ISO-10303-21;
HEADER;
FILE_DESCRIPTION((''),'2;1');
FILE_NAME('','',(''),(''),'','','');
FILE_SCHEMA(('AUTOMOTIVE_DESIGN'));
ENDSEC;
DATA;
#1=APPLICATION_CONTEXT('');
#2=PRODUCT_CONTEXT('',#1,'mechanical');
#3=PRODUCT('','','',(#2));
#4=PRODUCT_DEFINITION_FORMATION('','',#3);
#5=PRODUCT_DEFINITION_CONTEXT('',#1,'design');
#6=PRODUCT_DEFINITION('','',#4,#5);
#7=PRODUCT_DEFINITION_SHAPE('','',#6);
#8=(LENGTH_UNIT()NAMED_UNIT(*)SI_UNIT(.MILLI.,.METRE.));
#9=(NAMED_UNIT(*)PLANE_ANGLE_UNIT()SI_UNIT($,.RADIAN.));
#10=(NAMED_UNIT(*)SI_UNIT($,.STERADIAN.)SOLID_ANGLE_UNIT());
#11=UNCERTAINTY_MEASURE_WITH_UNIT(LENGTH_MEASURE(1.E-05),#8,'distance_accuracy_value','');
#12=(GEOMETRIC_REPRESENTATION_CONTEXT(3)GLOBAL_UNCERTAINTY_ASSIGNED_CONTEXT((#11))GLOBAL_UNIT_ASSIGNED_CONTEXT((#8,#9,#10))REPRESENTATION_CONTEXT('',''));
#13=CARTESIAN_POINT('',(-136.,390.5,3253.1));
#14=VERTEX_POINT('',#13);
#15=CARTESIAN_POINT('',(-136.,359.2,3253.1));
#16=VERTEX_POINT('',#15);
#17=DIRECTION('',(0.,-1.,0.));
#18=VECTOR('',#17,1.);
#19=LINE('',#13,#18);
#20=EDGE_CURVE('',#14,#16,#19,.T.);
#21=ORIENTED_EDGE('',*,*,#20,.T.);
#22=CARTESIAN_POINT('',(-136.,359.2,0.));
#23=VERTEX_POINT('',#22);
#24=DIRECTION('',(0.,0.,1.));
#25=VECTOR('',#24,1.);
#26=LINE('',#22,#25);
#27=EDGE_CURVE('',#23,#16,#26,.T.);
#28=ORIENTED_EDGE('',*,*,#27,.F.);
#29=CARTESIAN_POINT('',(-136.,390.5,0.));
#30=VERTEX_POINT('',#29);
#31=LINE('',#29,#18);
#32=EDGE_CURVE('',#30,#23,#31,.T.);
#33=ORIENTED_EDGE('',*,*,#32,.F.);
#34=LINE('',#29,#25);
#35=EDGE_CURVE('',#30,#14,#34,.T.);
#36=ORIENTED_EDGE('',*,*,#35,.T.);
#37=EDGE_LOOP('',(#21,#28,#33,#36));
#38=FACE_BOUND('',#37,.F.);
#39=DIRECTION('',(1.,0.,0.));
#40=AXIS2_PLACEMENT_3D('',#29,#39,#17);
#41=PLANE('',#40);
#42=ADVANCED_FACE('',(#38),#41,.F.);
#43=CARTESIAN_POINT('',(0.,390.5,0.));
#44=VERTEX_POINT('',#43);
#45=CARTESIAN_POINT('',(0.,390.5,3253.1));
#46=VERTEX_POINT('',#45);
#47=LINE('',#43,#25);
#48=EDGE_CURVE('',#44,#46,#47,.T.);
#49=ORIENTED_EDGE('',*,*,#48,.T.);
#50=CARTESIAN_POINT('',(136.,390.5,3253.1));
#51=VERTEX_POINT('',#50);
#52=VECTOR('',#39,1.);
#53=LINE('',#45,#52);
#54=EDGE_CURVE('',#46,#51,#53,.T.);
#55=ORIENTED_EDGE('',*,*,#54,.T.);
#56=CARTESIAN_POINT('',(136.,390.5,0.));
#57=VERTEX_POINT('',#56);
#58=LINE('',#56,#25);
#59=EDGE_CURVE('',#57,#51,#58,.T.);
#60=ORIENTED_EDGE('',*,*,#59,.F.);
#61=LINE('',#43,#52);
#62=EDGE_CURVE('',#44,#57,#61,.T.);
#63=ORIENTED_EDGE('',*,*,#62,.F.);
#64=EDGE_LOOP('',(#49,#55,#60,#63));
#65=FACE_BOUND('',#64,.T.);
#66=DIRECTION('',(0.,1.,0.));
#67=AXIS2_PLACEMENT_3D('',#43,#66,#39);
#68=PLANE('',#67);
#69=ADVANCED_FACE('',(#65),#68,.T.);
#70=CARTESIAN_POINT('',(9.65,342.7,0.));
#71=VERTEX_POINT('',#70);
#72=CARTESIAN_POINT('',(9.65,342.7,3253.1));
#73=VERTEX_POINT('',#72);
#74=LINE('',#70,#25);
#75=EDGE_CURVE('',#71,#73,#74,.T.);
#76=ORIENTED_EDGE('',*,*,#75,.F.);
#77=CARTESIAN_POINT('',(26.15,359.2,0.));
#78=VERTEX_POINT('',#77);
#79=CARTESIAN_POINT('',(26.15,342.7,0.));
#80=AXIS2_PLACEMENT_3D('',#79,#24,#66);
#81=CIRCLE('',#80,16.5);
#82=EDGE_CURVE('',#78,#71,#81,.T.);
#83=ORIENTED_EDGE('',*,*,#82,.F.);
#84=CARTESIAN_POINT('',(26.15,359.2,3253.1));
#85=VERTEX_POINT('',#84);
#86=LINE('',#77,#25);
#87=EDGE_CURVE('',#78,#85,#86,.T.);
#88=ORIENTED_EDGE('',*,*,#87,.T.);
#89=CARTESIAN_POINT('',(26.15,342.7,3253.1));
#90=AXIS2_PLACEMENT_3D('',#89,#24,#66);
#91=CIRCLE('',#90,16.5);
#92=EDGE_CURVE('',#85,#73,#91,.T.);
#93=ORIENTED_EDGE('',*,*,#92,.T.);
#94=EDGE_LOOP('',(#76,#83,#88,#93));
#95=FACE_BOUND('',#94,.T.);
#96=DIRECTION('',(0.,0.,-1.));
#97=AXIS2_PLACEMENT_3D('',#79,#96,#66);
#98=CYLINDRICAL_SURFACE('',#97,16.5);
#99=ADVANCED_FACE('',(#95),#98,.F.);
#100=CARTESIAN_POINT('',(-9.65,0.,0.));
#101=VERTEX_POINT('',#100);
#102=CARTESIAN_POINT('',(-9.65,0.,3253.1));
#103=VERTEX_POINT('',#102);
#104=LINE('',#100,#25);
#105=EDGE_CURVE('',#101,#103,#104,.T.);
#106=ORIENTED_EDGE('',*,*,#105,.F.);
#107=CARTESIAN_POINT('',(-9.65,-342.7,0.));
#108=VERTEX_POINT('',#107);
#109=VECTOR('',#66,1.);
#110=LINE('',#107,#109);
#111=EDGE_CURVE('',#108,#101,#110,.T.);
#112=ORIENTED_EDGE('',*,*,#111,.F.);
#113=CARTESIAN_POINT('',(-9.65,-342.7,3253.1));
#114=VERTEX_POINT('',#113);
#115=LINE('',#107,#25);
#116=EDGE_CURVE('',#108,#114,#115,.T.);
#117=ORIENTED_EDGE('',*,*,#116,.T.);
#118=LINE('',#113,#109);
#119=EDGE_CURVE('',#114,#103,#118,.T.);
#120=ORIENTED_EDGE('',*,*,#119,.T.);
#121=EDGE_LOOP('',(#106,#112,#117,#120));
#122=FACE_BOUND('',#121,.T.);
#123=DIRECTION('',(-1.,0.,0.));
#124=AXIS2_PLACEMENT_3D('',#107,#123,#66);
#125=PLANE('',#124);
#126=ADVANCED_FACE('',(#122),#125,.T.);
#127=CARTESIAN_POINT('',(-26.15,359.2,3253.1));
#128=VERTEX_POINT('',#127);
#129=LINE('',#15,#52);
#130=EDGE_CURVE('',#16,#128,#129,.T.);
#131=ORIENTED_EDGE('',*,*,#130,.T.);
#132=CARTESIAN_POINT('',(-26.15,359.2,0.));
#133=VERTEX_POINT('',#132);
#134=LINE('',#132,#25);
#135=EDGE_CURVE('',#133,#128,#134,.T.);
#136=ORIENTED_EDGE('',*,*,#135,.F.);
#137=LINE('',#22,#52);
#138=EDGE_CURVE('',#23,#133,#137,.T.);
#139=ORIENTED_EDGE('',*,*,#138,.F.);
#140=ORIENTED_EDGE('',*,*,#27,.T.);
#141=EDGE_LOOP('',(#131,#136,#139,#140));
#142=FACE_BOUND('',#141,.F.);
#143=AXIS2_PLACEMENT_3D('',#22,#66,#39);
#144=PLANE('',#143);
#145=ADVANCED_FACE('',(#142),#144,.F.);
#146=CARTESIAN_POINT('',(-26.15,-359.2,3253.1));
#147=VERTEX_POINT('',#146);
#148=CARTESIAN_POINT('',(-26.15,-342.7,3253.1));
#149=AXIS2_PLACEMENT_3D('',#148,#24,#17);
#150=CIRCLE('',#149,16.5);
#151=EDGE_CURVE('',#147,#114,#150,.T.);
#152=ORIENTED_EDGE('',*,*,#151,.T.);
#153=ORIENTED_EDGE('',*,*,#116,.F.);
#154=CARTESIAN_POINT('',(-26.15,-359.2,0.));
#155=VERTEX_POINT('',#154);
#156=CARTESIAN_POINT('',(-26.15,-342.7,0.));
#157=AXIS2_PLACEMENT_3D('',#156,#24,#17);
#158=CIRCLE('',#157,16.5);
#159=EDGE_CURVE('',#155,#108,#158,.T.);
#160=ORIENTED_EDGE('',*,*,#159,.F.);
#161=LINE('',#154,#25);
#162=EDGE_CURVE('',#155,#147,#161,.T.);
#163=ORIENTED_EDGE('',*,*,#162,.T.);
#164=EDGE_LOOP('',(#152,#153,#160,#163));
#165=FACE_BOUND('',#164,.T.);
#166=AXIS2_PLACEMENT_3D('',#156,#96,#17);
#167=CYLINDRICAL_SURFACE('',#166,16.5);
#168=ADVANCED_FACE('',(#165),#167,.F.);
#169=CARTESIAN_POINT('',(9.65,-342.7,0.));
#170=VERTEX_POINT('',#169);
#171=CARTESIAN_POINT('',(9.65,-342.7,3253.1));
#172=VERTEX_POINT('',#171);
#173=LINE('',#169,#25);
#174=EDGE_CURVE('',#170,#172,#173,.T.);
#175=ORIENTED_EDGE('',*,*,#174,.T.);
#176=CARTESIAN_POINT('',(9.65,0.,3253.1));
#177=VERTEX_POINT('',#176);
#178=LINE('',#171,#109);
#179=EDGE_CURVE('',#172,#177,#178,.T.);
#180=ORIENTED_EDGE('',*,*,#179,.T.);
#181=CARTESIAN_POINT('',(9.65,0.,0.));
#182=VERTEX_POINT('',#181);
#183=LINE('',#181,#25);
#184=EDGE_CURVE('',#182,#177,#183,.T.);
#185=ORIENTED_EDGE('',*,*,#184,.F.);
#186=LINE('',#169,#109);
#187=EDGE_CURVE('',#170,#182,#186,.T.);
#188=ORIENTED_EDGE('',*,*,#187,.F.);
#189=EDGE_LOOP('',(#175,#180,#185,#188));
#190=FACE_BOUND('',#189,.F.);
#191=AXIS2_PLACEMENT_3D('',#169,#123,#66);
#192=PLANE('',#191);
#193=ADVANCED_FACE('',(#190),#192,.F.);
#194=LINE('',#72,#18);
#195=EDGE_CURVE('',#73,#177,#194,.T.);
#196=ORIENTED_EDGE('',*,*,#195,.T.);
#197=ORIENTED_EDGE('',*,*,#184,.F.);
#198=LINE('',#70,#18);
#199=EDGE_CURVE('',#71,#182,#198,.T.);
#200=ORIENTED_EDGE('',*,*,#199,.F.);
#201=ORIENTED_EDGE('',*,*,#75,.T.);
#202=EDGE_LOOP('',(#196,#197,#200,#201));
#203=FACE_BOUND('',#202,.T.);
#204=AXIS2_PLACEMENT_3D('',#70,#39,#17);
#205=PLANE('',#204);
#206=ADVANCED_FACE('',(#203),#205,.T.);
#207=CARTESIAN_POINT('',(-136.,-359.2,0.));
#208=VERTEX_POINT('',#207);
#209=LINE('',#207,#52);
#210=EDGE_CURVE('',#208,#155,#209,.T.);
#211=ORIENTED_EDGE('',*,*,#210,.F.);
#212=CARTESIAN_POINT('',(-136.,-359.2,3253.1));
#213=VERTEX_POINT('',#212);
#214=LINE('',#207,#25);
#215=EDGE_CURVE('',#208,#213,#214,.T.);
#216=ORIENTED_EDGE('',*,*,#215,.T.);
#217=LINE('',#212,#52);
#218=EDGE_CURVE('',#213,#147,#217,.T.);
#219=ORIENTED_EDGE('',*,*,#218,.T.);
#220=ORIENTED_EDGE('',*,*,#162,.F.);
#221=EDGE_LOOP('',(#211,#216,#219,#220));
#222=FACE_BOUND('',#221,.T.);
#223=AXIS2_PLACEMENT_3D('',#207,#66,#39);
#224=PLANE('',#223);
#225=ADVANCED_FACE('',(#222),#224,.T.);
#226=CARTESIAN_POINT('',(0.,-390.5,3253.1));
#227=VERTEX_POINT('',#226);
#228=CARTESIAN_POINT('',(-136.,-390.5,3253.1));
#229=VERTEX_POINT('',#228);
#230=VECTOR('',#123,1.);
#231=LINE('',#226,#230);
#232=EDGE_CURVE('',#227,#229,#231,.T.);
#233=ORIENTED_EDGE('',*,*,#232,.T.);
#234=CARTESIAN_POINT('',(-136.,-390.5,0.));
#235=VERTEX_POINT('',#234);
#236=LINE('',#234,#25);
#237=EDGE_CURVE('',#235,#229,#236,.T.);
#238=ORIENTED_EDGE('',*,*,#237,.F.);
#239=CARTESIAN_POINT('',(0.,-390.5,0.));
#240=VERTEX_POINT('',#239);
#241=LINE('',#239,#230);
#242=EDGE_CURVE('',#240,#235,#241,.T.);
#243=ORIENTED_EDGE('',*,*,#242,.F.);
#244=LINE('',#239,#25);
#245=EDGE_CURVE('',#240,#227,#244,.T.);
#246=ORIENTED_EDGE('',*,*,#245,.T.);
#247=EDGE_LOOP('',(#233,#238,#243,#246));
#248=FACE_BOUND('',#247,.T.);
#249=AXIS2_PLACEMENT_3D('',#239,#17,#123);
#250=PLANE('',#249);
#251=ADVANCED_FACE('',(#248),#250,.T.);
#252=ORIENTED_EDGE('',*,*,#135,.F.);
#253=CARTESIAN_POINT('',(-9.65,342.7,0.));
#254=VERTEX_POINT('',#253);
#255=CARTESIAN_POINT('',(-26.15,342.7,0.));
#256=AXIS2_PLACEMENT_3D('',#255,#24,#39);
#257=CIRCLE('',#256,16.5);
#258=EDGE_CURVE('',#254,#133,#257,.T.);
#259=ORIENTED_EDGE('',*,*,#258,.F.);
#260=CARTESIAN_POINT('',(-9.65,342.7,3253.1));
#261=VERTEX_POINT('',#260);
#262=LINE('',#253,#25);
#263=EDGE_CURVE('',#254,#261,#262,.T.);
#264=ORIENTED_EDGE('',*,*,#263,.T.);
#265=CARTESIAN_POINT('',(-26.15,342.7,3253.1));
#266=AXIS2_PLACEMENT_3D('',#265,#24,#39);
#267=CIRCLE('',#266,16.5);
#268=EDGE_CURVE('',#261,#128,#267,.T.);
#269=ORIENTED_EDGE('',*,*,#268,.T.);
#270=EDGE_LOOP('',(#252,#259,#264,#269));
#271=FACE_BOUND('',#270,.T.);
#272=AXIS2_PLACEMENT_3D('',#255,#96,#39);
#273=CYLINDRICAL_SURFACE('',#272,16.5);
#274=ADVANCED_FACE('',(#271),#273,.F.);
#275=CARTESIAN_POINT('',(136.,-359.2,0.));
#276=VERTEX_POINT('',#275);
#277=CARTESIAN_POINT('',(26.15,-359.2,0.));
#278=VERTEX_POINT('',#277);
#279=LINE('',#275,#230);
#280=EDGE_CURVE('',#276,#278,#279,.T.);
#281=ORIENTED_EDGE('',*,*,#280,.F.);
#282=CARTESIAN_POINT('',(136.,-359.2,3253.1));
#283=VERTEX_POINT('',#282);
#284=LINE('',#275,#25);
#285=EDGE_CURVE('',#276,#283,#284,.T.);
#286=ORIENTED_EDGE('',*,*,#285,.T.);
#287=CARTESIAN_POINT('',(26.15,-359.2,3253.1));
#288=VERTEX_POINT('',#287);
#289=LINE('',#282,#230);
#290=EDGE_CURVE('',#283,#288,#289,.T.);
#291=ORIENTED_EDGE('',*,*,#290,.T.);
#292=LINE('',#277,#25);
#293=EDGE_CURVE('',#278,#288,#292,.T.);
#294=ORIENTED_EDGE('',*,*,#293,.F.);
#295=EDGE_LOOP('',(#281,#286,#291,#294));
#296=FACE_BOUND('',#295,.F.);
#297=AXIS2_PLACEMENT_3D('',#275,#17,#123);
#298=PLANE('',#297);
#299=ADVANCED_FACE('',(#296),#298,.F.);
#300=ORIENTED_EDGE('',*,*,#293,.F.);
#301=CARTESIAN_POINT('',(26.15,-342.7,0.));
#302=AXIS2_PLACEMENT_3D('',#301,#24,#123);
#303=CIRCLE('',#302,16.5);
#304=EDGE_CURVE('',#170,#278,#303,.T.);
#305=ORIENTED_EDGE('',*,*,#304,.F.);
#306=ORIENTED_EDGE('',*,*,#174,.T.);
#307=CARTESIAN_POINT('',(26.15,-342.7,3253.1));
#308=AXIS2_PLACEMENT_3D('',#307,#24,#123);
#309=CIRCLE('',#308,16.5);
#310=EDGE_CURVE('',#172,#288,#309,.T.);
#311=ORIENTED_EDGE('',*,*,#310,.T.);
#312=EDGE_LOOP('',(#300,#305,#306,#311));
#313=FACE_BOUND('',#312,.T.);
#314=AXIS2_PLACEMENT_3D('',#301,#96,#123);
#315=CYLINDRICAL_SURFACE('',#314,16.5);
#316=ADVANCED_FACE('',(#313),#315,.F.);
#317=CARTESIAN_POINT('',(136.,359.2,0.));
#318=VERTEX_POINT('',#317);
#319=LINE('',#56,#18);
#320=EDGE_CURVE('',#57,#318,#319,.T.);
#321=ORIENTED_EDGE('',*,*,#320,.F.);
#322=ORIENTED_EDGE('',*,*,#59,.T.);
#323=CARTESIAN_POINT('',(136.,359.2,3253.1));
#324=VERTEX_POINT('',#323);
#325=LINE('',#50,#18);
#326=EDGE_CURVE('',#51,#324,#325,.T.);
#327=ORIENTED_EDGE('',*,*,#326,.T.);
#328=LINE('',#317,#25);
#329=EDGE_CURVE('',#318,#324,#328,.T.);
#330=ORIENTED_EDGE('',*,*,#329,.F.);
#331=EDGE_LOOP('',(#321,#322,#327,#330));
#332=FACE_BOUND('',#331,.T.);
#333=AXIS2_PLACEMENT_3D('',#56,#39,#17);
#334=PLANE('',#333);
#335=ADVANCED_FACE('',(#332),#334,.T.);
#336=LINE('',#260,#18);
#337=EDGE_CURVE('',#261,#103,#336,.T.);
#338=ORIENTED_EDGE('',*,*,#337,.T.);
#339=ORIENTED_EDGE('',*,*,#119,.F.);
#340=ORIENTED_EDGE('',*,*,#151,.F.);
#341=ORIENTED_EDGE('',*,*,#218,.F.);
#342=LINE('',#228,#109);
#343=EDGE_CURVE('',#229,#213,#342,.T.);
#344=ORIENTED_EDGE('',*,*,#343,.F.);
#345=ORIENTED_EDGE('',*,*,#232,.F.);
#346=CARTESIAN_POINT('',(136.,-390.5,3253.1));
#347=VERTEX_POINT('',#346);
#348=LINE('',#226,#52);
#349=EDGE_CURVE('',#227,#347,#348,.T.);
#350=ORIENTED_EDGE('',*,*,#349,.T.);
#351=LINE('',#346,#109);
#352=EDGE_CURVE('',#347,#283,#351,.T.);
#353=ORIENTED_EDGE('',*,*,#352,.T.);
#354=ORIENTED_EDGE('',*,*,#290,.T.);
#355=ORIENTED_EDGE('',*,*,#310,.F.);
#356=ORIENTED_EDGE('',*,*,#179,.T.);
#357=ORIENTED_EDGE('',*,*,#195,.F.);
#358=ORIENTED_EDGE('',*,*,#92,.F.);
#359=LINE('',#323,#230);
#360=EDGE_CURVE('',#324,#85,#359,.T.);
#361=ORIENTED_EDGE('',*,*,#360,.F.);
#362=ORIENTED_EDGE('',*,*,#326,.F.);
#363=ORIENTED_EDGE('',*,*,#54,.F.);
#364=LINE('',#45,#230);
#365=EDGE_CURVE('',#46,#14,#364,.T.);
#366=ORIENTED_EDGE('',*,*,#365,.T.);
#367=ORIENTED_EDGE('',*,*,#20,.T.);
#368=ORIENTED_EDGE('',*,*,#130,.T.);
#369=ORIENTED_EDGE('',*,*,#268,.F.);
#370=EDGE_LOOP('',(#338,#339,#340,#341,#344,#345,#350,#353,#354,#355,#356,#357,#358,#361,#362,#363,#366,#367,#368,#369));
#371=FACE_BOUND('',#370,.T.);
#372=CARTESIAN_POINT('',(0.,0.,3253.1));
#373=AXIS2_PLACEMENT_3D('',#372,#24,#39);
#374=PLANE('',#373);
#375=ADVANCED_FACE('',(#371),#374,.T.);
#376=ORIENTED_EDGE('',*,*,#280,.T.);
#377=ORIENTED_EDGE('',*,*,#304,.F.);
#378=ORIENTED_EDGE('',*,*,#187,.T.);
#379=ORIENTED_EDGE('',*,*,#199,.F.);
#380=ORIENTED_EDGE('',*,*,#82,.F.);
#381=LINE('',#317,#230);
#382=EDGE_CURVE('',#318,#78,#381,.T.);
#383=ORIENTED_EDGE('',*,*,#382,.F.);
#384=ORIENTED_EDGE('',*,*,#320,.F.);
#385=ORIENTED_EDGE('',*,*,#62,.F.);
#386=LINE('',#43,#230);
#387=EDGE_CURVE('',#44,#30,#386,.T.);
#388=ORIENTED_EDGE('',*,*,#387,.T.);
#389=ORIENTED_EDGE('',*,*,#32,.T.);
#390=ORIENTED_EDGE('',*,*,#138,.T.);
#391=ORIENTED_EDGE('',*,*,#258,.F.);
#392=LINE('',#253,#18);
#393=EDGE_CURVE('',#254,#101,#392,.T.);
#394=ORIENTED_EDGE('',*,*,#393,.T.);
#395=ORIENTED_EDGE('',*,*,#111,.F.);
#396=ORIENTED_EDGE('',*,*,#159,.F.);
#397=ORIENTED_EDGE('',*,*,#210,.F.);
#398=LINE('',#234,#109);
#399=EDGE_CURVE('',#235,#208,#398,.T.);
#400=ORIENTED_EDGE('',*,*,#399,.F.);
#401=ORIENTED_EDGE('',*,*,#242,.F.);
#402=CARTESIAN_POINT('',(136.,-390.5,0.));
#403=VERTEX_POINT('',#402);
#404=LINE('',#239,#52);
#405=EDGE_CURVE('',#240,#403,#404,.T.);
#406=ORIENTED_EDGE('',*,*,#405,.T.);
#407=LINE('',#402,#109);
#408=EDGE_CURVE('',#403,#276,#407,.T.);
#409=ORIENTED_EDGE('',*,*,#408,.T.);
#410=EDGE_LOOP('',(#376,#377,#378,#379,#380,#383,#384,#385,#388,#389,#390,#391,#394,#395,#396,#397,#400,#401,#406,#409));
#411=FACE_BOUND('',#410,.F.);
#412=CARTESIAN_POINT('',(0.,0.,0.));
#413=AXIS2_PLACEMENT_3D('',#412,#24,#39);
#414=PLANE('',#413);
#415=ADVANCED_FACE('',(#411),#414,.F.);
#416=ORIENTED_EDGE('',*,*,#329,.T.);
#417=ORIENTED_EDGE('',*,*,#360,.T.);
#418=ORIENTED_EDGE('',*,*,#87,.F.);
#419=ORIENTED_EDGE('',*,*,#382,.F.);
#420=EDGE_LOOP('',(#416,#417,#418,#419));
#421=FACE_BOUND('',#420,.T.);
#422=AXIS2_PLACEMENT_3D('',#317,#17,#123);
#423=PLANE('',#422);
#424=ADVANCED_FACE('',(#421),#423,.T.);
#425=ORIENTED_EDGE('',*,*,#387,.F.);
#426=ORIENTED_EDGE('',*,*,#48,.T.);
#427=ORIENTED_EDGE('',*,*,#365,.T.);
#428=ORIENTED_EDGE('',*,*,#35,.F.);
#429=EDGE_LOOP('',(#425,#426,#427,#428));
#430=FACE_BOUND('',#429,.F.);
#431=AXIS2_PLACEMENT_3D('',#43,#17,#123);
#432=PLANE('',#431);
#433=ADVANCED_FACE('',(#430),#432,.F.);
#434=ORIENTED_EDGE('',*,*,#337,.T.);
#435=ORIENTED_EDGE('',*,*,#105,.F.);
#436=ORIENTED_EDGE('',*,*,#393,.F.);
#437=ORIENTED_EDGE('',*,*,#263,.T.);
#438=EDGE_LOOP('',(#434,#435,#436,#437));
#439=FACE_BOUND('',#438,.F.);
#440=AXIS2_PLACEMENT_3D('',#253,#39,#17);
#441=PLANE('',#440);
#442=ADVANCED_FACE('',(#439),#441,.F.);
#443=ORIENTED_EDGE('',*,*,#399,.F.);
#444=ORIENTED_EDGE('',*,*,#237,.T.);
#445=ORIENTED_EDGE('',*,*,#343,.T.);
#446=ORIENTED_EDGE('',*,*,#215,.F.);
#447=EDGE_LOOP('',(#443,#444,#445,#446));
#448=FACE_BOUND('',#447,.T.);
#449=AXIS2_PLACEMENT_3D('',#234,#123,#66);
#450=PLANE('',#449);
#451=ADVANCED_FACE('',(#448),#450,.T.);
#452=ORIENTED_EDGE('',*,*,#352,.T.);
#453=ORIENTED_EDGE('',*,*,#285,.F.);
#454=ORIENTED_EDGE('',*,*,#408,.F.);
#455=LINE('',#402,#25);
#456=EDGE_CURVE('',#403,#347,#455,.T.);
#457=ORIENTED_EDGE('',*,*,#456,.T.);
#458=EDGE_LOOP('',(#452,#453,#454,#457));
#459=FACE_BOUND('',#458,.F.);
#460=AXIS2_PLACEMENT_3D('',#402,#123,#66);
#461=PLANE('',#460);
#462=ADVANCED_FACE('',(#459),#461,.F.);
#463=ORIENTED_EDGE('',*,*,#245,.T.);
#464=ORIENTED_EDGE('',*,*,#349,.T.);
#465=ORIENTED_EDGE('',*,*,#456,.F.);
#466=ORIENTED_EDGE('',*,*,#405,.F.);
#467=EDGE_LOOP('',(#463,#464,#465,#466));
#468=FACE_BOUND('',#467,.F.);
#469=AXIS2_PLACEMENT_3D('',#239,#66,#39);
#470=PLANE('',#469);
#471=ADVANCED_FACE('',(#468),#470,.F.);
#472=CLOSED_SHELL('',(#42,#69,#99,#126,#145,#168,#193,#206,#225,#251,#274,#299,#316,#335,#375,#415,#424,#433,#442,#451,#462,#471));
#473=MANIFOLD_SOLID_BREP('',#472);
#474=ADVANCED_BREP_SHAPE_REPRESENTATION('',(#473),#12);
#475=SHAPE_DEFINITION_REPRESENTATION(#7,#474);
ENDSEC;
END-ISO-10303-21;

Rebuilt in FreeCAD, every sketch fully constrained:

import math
import FreeCAD as App
import Part
import Sketcher

V = App.Vector
Q = App.Units.Quantity

doc = App.newDocument("Part")
body = doc.addObject("PartDesign::Body", "Body")

# Sketch on XY plane
sketch1 = body.newObject("Sketcher::SketchObject", "Sketch")
sketch1.AttachmentSupport = (doc.getObject("XY_Plane"), [""])
sketch1.MapMode = "FlatFace"
sketch1.addGeometry(Part.LineSegment(V(-136, -359.2, 0), V(-136, -390.5, 0)), False)
sketch1.addGeometry(Part.LineSegment(V(-136, -390.5, 0), V(136, -390.5, 0)), False)
sketch1.addGeometry(Part.LineSegment(V(136, -390.5, 0), V(136, -359.2, 0)), False)
sketch1.addGeometry(Part.LineSegment(V(136, -359.2, 0), V(26.15, -359.2, 0)), False)
sketch1.addGeometry(Part.ArcOfCircle(Part.Circle(V(26.15, -342.7, 0), V(0, 0, 1), 16.5), math.radians(180), math.radians(270)), False)
sketch1.addGeometry(Part.LineSegment(V(9.65, -342.7, 0), V(9.65, 342.7, 0)), False)
sketch1.addGeometry(Part.ArcOfCircle(Part.Circle(V(26.15, 342.7, 0), V(0, 0, 1), 16.5), math.radians(90), math.radians(180)), False)
sketch1.addGeometry(Part.LineSegment(V(26.15, 359.2, 0), V(136, 359.2, 0)), False)
sketch1.addGeometry(Part.LineSegment(V(136, 359.2, 0), V(136, 390.5, 0)), False)
sketch1.addGeometry(Part.LineSegment(V(136, 390.5, 0), V(-136, 390.5, 0)), False)
sketch1.addGeometry(Part.LineSegment(V(-136, 390.5, 0), V(-136, 359.2, 0)), False)
sketch1.addGeometry(Part.LineSegment(V(-136, 359.2, 0), V(-26.15, 359.2, 0)), False)
sketch1.addGeometry(Part.ArcOfCircle(Part.Circle(V(-26.15, 342.7, 0), V(0, 0, 1), 16.5), math.radians(0), math.radians(90)), False)
sketch1.addGeometry(Part.LineSegment(V(-9.65, 342.7, 0), V(-9.65, -342.7, 0)), False)
sketch1.addGeometry(Part.ArcOfCircle(Part.Circle(V(-26.15, -342.7, 0), V(0, 0, 1), 16.5), math.radians(-90), math.radians(0)), False)
sketch1.addGeometry(Part.LineSegment(V(-26.15, -359.2, 0), V(-136, -359.2, 0)), False)
sketch1.addConstraint(Sketcher.Constraint("Coincident", 0, 2, 1, 1))
sketch1.addConstraint(Sketcher.Constraint("Coincident", 1, 2, 2, 1))
sketch1.addConstraint(Sketcher.Constraint("Coincident", 2, 2, 3, 1))
sketch1.addConstraint(Sketcher.Constraint("Tangent", 3, 2, 4, 2))
sketch1.addConstraint(Sketcher.Constraint("Tangent", 4, 1, 5, 1))
sketch1.addConstraint(Sketcher.Constraint("Tangent", 5, 2, 6, 2))
sketch1.addConstraint(Sketcher.Constraint("Tangent", 6, 1, 7, 1))
sketch1.addConstraint(Sketcher.Constraint("Coincident", 7, 2, 8, 1))
sketch1.addConstraint(Sketcher.Constraint("Coincident", 8, 2, 9, 1))
sketch1.addConstraint(Sketcher.Constraint("Coincident", 9, 2, 10, 1))
sketch1.addConstraint(Sketcher.Constraint("Coincident", 10, 2, 11, 1))
sketch1.addConstraint(Sketcher.Constraint("Tangent", 11, 2, 12, 2))
sketch1.addConstraint(Sketcher.Constraint("Tangent", 12, 1, 13, 1))
sketch1.addConstraint(Sketcher.Constraint("Tangent", 13, 2, 14, 2))
sketch1.addConstraint(Sketcher.Constraint("Tangent", 14, 1, 15, 1))
sketch1.addConstraint(Sketcher.Constraint("Coincident", 15, 2, 0, 1))
sketch1.addConstraint(Sketcher.Constraint("Vertical", 0))
sketch1.addConstraint(Sketcher.Constraint("Horizontal", 1))
sketch1.addConstraint(Sketcher.Constraint("Vertical", 2))
sketch1.addConstraint(Sketcher.Constraint("Horizontal", 3))
sketch1.addConstraint(Sketcher.Constraint("Vertical", 5))
sketch1.addConstraint(Sketcher.Constraint("Horizontal", 7))
sketch1.addConstraint(Sketcher.Constraint("Vertical", 8))
sketch1.addConstraint(Sketcher.Constraint("Horizontal", 9))
sketch1.addConstraint(Sketcher.Constraint("Vertical", 10))
sketch1.addConstraint(Sketcher.Constraint("Horizontal", 11))
sketch1.addConstraint(Sketcher.Constraint("Vertical", 13))
sketch1.addConstraint(Sketcher.Constraint("Horizontal", 15))
sketch1.addConstraint(Sketcher.Constraint("Equal", 4, 6))
sketch1.addConstraint(Sketcher.Constraint("Equal", 6, 12))
sketch1.addConstraint(Sketcher.Constraint("Equal", 12, 14))
sketch1.addConstraint(Sketcher.Constraint("Symmetric", 4, 3, 12, 3, -1, 1))
sketch1.addConstraint(Sketcher.Constraint("Symmetric", 0, 2, 8, 2, -1, 1))
sketch1.addConstraint(Sketcher.Constraint("Symmetric", 7, 2, 10, 2, -2))
sketch1.addConstraint(Sketcher.Constraint("Symmetric", 2, 2, 15, 2, -2))
sketch1.addConstraint(Sketcher.Constraint("Radius", 4, Q("16.5 mm")))
sketch1.addConstraint(Sketcher.Constraint("DistanceY", 0, 2, 0, 1, Q("31.3 mm")))
sketch1.addConstraint(Sketcher.Constraint("DistanceX", 0, 2, -1, 1, Q("136 mm")))
sketch1.addConstraint(Sketcher.Constraint("DistanceY", 0, 2, -1, 1, Q("390.5 mm")))
sketch1.addConstraint(Sketcher.Constraint("DistanceX", -1, 1, 4, 1, Q("9.65 mm")))
pad1 = body.newObject("PartDesign::Pad", "Pad")
pad1.Profile = sketch1
pad1.Length = 3253.1

doc.recompute()
